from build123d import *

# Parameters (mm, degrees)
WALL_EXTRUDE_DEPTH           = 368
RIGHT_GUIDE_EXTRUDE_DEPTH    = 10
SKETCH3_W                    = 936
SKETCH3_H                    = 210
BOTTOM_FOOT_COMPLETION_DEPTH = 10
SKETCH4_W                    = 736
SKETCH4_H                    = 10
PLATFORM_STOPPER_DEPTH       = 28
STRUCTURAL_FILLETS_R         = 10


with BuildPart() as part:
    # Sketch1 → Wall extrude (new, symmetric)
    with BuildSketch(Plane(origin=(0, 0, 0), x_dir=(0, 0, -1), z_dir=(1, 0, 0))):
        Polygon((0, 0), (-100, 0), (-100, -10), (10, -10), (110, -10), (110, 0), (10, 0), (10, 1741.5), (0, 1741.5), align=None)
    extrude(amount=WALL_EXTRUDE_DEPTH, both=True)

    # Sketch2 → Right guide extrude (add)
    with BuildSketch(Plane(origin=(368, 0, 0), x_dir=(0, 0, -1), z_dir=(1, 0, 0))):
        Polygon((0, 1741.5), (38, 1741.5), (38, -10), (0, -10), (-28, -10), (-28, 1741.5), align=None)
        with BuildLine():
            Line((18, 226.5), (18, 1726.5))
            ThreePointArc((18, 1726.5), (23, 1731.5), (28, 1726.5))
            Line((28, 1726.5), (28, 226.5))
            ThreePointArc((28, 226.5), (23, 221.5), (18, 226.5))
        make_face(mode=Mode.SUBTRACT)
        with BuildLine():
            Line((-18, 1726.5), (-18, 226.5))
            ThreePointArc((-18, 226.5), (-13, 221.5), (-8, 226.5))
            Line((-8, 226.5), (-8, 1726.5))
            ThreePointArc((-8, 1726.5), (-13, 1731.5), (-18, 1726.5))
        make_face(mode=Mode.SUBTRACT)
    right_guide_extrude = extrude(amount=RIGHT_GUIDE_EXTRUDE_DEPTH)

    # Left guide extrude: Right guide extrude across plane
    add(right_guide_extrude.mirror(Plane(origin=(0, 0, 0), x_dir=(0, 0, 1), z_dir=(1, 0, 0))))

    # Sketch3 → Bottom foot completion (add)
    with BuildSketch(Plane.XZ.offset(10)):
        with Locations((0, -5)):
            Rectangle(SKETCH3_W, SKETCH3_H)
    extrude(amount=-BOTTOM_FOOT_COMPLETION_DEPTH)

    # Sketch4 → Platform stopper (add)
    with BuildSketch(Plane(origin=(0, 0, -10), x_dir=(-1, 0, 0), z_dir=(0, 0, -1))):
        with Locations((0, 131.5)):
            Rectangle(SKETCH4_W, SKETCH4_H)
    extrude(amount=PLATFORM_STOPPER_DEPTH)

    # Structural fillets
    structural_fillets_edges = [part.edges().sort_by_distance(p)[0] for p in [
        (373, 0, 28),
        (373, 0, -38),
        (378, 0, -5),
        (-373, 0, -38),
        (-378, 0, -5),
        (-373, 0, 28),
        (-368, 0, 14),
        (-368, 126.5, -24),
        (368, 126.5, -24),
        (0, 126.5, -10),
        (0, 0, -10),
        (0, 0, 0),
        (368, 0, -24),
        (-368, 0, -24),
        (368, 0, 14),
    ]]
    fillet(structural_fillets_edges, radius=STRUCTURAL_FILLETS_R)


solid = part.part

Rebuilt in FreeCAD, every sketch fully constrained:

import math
import FreeCAD as App
import Part
import Sketcher
from FreeCAD import Vector
Q = App.Units.Quantity


def edges_at(feature, points):
    """Names of the edges that pass closest to the given points."""
    edges = feature.Shape.Edges
    near = lambda p: min(range(len(edges)), key=lambda i: edges[i].distToShape(Part.Vertex(*p))[0])
    return sorted({f"Edge{near(p) + 1}" for p in points})


def add_polygon(sketch, points):
    """Adds a closed chain of lines whose ends are joined by coincident constraints."""
    first, n = sketch.GeometryCount, len(points)
    for a, b in zip(points, points[1:] + points[:1]):
        sketch.addGeometry(Part.LineSegment(App.Vector(*a, 0), App.Vector(*b, 0)), False)
    for i in range(n):
        sketch.addConstraint(Sketcher.Constraint("Coincident", first + i, 2, first + (i + 1) % n, 1))

doc = App.newDocument("Part")
body = doc.addObject("PartDesign::Body", "Body")

# Sketch on YZ plane
sketch1 = body.newObject("Sketcher::SketchObject", "Sketch")
sketch1.AttachmentSupport = (doc.getObject("YZ_Plane"), [""])
sketch1.MapMode = "FlatFace"
add_polygon(sketch1, [(0, 0), (0, 100), (-10, 100), (-10, -110), (0, -110), (0, -10), (1742, -10), (1742, 0)])  # lines 0-7
sketch1.addConstraint([
    Sketcher.Constraint("Vertical", 0),
    Sketcher.Constraint("Horizontal", 1),
    Sketcher.Constraint("Vertical", 2),
    Sketcher.Constraint("Horizontal", 3),
    Sketcher.Constraint("Vertical", 4),
    Sketcher.Constraint("Horizontal", 5),
    Sketcher.Constraint("Vertical", 6),
    Sketcher.Constraint("Horizontal", 7),
    Sketcher.Constraint("Coincident", 7, 2, -1, 1),
    Sketcher.Constraint("PointOnObject", 3, 2, -2),
    Sketcher.Constraint("Equal", 0, 4),
    Sketcher.Constraint("Equal", 3, 6),
    Sketcher.Constraint("DistanceX", 1, 2, 1, 1, Q("10 mm")),
    Sketcher.Constraint("DistanceY", 0, 1, 0, 2, Q("100 mm")),
    Sketcher.Constraint("DistanceX", 5, 1, 5, 2, Q("1741.5 mm")),
])
pad1 = body.newObject("PartDesign::Pad", "Pad")
pad1.Profile = sketch1
pad1.Length = 736
pad1.Midplane = True

# Sketch on YZ plane
sketch2 = body.newObject("Sketcher::SketchObject", "Sketch001")
sketch2.AttachmentSupport = (doc.getObject("YZ_Plane"), [""])
sketch2.MapMode = "FlatFace"
sketch2.AttachmentOffset = App.Placement(Vector(0, 0, 368), App.Rotation())
add_polygon(sketch2, [(1742, -38), (1742, 28), (-10, 28), (-10, -38)])  # lines 0-3
sketch2.addGeometry(Part.LineSegment(Vector(226, -18, 0), Vector(1726, -18, 0)), False)  # 4
sketch2.addGeometry(Part.ArcOfCircle(Part.Circle(Vector(1726, -23, 0), Vector(0, 0, 1), 5), math.radians(-90), math.radians(90)), False)  # 5
sketch2.addGeometry(Part.LineSegment(Vector(1726, -28, 0), Vector(226, -28, 0)), False)  # 6
sketch2.addGeometry(Part.ArcOfCircle(Part.Circle(Vector(226, -23, 0), Vector(0, 0, 1), 5), math.radians(90), math.radians(270)), False)  # 7
sketch2.addGeometry(Part.ArcOfCircle(Part.Circle(Vector(1726, 13, 0), Vector(0, 0, 1), 5), math.radians(-90), math.radians(90)), False)  # 8
sketch2.addGeometry(Part.LineSegment(Vector(1726, 8, 0), Vector(226, 8, 0)), False)  # 9
sketch2.addGeometry(Part.ArcOfCircle(Part.Circle(Vector(226, 13, 0), Vector(0, 0, 1), 5), math.radians(90), math.radians(270)), False)  # 10
sketch2.addGeometry(Part.LineSegment(Vector(226, 18, 0), Vector(1726, 18, 0)), False)  # 11
sketch2.addConstraint([
    Sketcher.Constraint("Tangent", 4, 2, 5, 2),
    Sketcher.Constraint("Tangent", 5, 1, 6, 1),
    Sketcher.Constraint("Tangent", 6, 2, 7, 2),
    Sketcher.Constraint("Tangent", 7, 1, 4, 1),
    Sketcher.Constraint("Tangent", 8, 1, 9, 1),
    Sketcher.Constraint("Tangent", 9, 2, 10, 2),
    Sketcher.Constraint("Tangent", 10, 1, 11, 1),
    Sketcher.Constraint("Tangent", 11, 2, 8, 2),
    Sketcher.Constraint("Vertical", 0),
    Sketcher.Constraint("Horizontal", 1),
    Sketcher.Constraint("Vertical", 2),
    Sketcher.Constraint("Horizontal", 3),
    Sketcher.Constraint("Horizontal", 4),
    Sketcher.Constraint("Horizontal", 6),
    Sketcher.Constraint("Horizontal", 9),
    Sketcher.Constraint("Horizontal", 11),
    Sketcher.Constraint("Equal", 7, 8),
    Sketcher.Constraint("Symmetric", 7, 1, 10, 1, -1),
    Sketcher.Constraint("Vertical", 5, 3, 8, 3),
    Sketcher.Constraint("Radius", 5, Q("5 mm")),
    Sketcher.Constraint("DistanceX", 4, 1, 4, 2, Q("1500 mm")),
    Sketcher.Constraint("DistanceY", 0, 1, 0, 2, Q("66 mm")),
    Sketcher.Constraint("DistanceX", 1, 2, 1, 1, Q("1751.5 mm")),
    Sketcher.Constraint("DistanceY", 5, 3, -1, 1, Q("23 mm")),
    Sketcher.Constraint("DistanceY", -1, 1, 0, 2, Q("28 mm")),
    Sketcher.Constraint("DistanceX", 1, 2, -1, 1, Q("10 mm")),
    Sketcher.Constraint("DistanceX", 8, 3, 0, 2, Q("15 mm")),
])
pad2 = body.newObject("PartDesign::Pad", "Pad001")
pad2.Profile = sketch2
pad2.Length = 10
doc.recompute()

mirrored = body.newObject("PartDesign::Mirrored", "Mirrored")
mirrored.Originals = [pad2]
mirrored.MirrorPlane = (doc.getObject("YZ_Plane"), [""])
body.Tip = mirrored

# Sketch on XZ plane
sketch3 = body.newObject("Sketcher::SketchObject", "Sketch002")
sketch3.AttachmentSupport = (doc.getObject("XZ_Plane"), [""])
sketch3.MapMode = "FlatFace"
sketch3.AttachmentOffset = App.Placement(Vector(0, 0, 10), App.Rotation())
add_polygon(sketch3, [(-468, 100), (-468, -110), (468, -110), (468, 100)])  # lines 0-3
sketch3.addConstraint([
    Sketcher.Constraint("Vertical", 0),
    Sketcher.Constraint("Horizontal", 1),
    Sketcher.Constraint("Vertical", 2),
    Sketcher.Constraint("Horizontal", 3),
    Sketcher.Constraint("DistanceX", 1, 1, 1, 2, Q("936 mm")),
    Sketcher.Constraint("DistanceY", 0, 2, 0, 1, Q("210 mm")),
    Sketcher.Constraint("DistanceX", 0, 2, -1, 1, Q("468 mm")),
    Sketcher.Constraint("DistanceY", 0, 2, -1, 1, Q("110 mm")),
])
pad3 = body.newObject("PartDesign::Pad", "Pad002")
pad3.Profile = sketch3
pad3.Length = 10
pad3.Reversed = True

# Sketch on XY plane
sketch4 = body.newObject("Sketcher::SketchObject", "Sketch003")
sketch4.AttachmentSupport = (doc.getObject("XY_Plane"), [""])
sketch4.MapMode = "FlatFace"
sketch4.AttachmentOffset = App.Placement(Vector(0, 0, -10), App.Rotation())
add_polygon(sketch4, [(368, 136), (368, 126), (-368, 126), (-368, 136)])  # lines 0-3
sketch4.addConstraint([
    Sketcher.Constraint("Vertical", 0),
    Sketcher.Constraint("Horizontal", 1),
    Sketcher.Constraint("Vertical", 2),
    Sketcher.Constraint("Horizontal", 3),
    Sketcher.Constraint("DistanceX", 1, 2, 1, 1, Q("736 mm")),
    Sketcher.Constraint("DistanceY", 0, 2, 0, 1, Q("10 mm")),
    Sketcher.Constraint("DistanceX", -1, 1, 0, 2, Q("368 mm")),
    Sketcher.Constraint("DistanceY", -1, 1, 0, 2, Q("126.5 mm")),
])
pad4 = body.newObject("PartDesign::Pad", "Pad003")
pad4.Profile = sketch4
pad4.Length = 28
pad4.Reversed = True
doc.recompute()

fillet = body.newObject("PartDesign::Fillet", "Fillet")
fillet.Base = (pad4, edges_at(pad4, [
    (373, 0, 28),
    (373, 0, -38),
    (378, 0, -5),
    (-373, 0, -38),
    (-378, 0, -5),
    (-373, 0, 28),
    (-368, 0, 14),
    (-368, 126.5, -24),
    (368, 126.5, -24),
    (0, 126.5, -10),
    (0, 0, -10),
    (0, 0, 0),
    (368, 0, -24),
    (-368, 0, -24),
    (368, 0, 14),
]))
fillet.Radius = 10

doc.recompute()
